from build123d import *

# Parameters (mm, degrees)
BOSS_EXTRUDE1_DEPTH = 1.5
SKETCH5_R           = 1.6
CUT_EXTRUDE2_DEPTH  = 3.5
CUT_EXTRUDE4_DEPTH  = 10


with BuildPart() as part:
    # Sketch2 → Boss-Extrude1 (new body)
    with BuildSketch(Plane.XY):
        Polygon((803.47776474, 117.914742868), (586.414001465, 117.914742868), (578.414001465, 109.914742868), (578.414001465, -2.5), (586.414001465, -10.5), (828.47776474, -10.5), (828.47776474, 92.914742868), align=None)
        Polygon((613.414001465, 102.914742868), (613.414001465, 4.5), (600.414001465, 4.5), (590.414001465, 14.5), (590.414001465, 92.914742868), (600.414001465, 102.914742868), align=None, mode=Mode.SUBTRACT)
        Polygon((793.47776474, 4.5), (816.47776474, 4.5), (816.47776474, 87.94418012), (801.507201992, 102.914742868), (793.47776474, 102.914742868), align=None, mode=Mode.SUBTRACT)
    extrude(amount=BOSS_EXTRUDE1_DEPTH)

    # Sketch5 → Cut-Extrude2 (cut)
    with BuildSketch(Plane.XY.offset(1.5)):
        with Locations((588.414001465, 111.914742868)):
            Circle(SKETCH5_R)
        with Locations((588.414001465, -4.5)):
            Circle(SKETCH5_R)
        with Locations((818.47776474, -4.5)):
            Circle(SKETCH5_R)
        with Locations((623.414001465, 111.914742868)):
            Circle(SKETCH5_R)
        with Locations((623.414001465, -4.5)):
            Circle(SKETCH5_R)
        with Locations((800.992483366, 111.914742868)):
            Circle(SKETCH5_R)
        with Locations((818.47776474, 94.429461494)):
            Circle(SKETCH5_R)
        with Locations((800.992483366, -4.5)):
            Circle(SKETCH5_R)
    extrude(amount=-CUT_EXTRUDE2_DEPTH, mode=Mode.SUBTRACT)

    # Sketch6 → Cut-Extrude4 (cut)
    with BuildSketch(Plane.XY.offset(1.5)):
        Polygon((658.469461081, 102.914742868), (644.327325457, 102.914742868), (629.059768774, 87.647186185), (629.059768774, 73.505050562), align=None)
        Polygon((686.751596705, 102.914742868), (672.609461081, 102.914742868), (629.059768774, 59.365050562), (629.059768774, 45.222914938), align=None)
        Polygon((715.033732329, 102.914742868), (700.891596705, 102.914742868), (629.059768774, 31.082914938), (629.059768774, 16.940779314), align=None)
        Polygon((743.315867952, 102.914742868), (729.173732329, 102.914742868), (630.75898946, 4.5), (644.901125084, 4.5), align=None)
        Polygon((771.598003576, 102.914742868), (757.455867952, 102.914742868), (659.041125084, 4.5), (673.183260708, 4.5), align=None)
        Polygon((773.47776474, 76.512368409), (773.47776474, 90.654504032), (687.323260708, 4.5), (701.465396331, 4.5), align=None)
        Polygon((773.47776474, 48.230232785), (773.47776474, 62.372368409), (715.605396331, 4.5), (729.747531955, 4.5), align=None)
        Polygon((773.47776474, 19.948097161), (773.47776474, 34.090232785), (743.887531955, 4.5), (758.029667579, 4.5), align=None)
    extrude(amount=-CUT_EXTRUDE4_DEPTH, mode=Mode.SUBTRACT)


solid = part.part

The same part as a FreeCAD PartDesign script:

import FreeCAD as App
import Part
import Sketcher

V = App.Vector


def add_polygon(sketch, points):
    """Adds a closed chain of lines whose ends are joined by coincident constraints."""
    first, n = sketch.GeometryCount, len(points)
    for a, b in zip(points, points[1:] + points[:1]):
        sketch.addGeometry(Part.LineSegment(App.Vector(*a, 0), App.Vector(*b, 0)), False)
    for i in range(n):
        sketch.addConstraint(Sketcher.Constraint("Coincident", first + i, 2, first + (i + 1) % n, 1))

doc = App.newDocument("Part")
params = doc.addObject("Spreadsheet::Sheet", "Params")
for row, (alias, value) in enumerate([
    ("sketch1_width", "13 mm"),
    ("sketch1_width2", "23 mm"),
    ("pad1_length", "1.5 mm"),
    ("sketch2_diameter", "3.2 mm"),
    ("pocket1_length", "3.5 mm"),
    ("pocket2_length", "10 mm"),
], start=1):
    params.set(f"A{row}", alias)
    params.set(f"B{row}", "=" + value)
    params.setAlias(f"B{row}", alias)

body = doc.addObject("PartDesign::Body", "Body")

# Sketch on XY plane
sketch1 = doc.addObject("Sketcher::SketchObject", "Sketch")
body.addObject(sketch1)
sketch1.AttachmentSupport = (doc.XY_Plane, [""])
sketch1.MapMode = "FlatFace"
add_polygon(sketch1, [(803, 118), (586, 118), (578, 110), (578, -2), (586, -10), (828, -10), (828, 93)])  # lines 0-6
add_polygon(sketch1, [(600, 103), (613, 103), (613, 4), (600, 4), (590, 14), (590, 93)])  # lines 7-12
add_polygon(sketch1, [(816, 4), (793, 4), (793, 103), (802, 103), (816, 88)])  # lines 13-17
sketch1.addConstraint(Sketcher.Constraint("Horizontal", 0))
sketch1.addConstraint(Sketcher.Constraint("Vertical", 2))
sketch1.addConstraint(Sketcher.Constraint("Horizontal", 4))
sketch1.addConstraint(Sketcher.Constraint("Vertical", 5))
sketch1.addConstraint(Sketcher.Constraint("Horizontal", 7))
sketch1.addConstraint(Sketcher.Constraint("Vertical", 8))
sketch1.addConstraint(Sketcher.Constraint("Horizontal", 9))
sketch1.addConstraint(Sketcher.Constraint("Vertical", 11))
sketch1.addConstraint(Sketcher.Constraint("Horizontal", 13))
sketch1.addConstraint(Sketcher.Constraint("Vertical", 14))
sketch1.addConstraint(Sketcher.Constraint("Horizontal", 15))
sketch1.addConstraint(Sketcher.Constraint("Vertical", 17))
sketch1.addConstraint(Sketcher.Constraint("Perpendicular", 1, 3))
sketch1.addConstraint(Sketcher.Constraint("Parallel", 3, 6))
sketch1.addConstraint(Sketcher.Constraint("Parallel", 6, 10))
sketch1.addConstraint(Sketcher.Constraint("Perpendicular", 10, 12))
sketch1.addConstraint(Sketcher.Constraint("Perpendicular", 12, 16))
sketch1.addConstraint(Sketcher.Constraint("Horizontal", 5, 2, 11, 2))
sketch1.addConstraint(Sketcher.Constraint("Horizontal", 9, 2, 13, 2))
sketch1.addConstraint(Sketcher.Constraint("Horizontal", 12, 2, 14, 2))
sketch1.addConstraint(Sketcher.Constraint("Vertical", 0, 2, 3, 2))
sketch1.addConstraint(Sketcher.Constraint("Vertical", 9, 2, 12, 2))
sketch1.addConstraint(Sketcher.Constraint("Equal", 1, 3))
sketch1.addConstraint(Sketcher.Constraint("DistanceX", 7, 1, 7, 2, 13.0))
sketch1.addConstraint(Sketcher.Constraint("DistanceX", 13, 2, 13, 1, 23.0))
sketch1.addConstraint(Sketcher.Constraint("DistanceX", 1, 2, 0, 2, 8.0))
sketch1.addConstraint(Sketcher.Constraint("DistanceY", 5, 2, 0, 2, 25.0))
sketch1.addConstraint(Sketcher.Constraint("DistanceX", 0, 2, 7, 2, 27.0))
sketch1.addConstraint(Sketcher.Constraint("DistanceY", 7, 2, 0, 2, 15.0))
sketch1.addConstraint(Sketcher.Constraint("DistanceY", 3, 2, 8, 2, 15.0))
sketch1.addConstraint(Sketcher.Constraint("DistanceX", 13, 2, 4, 2, 35.0))
sketch1.addConstraint(Sketcher.Constraint("DistanceY", 2, 2, -1, 1, 2.5))
sketch1.addConstraint(Sketcher.Constraint("DistanceX", -1, 1, 0, 2, 586.414001))
sketch1.addConstraint(Sketcher.Constraint("DistanceY", 17, 2, 17, 1, 83.44418))
sketch1.addConstraint(Sketcher.Constraint("DistanceX", -1, 1, 15, 2, 801.507202))
sketch1.addConstraint(Sketcher.Constraint("DistanceX", 0, 2, 0, 1, 217.063763))
sketch1.setExpression("Constraints[41]", "Params.sketch1_width")
sketch1.setExpression("Constraints[42]", "Params.sketch1_width2")
pad1 = doc.addObject("PartDesign::Pad", "Pad")
body.addObject(pad1)
pad1.Profile = sketch1
pad1.setExpression("Length", "Params.pad1_length")

# Sketch on XY plane
sketch2 = doc.addObject("Sketcher::SketchObject", "Sketch001")
body.addObject(sketch2)
sketch2.AttachmentSupport = (doc.XY_Plane, [""])
sketch2.MapMode = "FlatFace"
sketch2.AttachmentOffset = App.Placement(V(0, 0, 1.5), App.Rotation())
sketch2.addGeometry(Part.Circle(V(588.4, 111.9, 0), V(0, 0, 1), 1.6), False)
sketch2.addGeometry(Part.Circle(V(588.4, -4.5, 0), V(0, 0, 1), 1.6), False)
sketch2.addGeometry(Part.Circle(V(818.5, -4.5, 0), V(0, 0, 1), 1.6), False)
sketch2.addGeometry(Part.Circle(V(623.4, 111.9, 0), V(0, 0, 1), 1.6), False)
sketch2.addGeometry(Part.Circle(V(623.4, -4.5, 0), V(0, 0, 1), 1.6), False)
sketch2.addGeometry(Part.Circle(V(801, 111.9, 0), V(0, 0, 1), 1.6), False)
sketch2.addGeometry(Part.Circle(V(818.5, 94.4, 0), V(0, 0, 1), 1.6), False)
sketch2.addGeometry(Part.Circle(V(801, -4.5, 0), V(0, 0, 1), 1.6), False)
sketch2.addConstraint(Sketcher.Constraint("Equal", 0, 1))
sketch2.addConstraint(Sketcher.Constraint("Equal", 1, 2))
sketch2.addConstraint(Sketcher.Constraint("Equal", 2, 3))
sketch2.addConstraint(Sketcher.Constraint("Equal", 3, 4))
sketch2.addConstraint(Sketcher.Constraint("Equal", 4, 5))
sketch2.addConstraint(Sketcher.Constraint("Equal", 5, 6))
sketch2.addConstraint(Sketcher.Constraint("Equal", 6, 7))
sketch2.addConstraint(Sketcher.Constraint("Horizontal", 1, 3, 2, 3))
sketch2.addConstraint(Sketcher.Constraint("Horizontal", 0, 3, 3, 3))
sketch2.addConstraint(Sketcher.Constraint("Horizontal", 2, 3, 4, 3))
sketch2.addConstraint(Sketcher.Constraint("Horizontal", 3, 3, 5, 3))
sketch2.addConstraint(Sketcher.Constraint("Horizontal", 4, 3, 7, 3))
sketch2.addConstraint(Sketcher.Constraint("Vertical", 0, 3, 1, 3))
sketch2.addConstraint(Sketcher.Constraint("Vertical", 3, 3, 4, 3))
sketch2.addConstraint(Sketcher.Constraint("Vertical", 2, 3, 6, 3))
sketch2.addConstraint(Sketcher.Constraint("Vertical", 5, 3, 7, 3))
sketch2.addConstraint(Sketcher.Constraint("Diameter", 0, 3.2))
sketch2.addConstraint(Sketcher.Constraint("DistanceX", 0, 3, 3, 3, 35.0))
sketch2.addConstraint(Sketcher.Constraint("DistanceY", 1, 3, -1, 1, 4.5))
sketch2.addConstraint(Sketcher.Constraint("DistanceX", -1, 1, 0, 3, 588.414001))
sketch2.addConstraint(Sketcher.Constraint("DistanceY", -1, 1, 6, 3, 94.429461))
sketch2.addConstraint(Sketcher.Constraint("DistanceX", 5, 3, 2, 3, 17.485281))
sketch2.addConstraint(Sketcher.Constraint("DistanceX", 3, 3, 5, 3, 177.578482))
sketch2.addConstraint(Sketcher.Constraint("DistanceY", 6, 3, 5, 3, 17.485281))
sketch2.setExpression("Constraints[16]", "Params.sketch2_diameter")
pocket1 = doc.addObject("PartDesign::Pocket", "Pocket")
body.addObject(pocket1)
pocket1.Profile = sketch2
pocket1.setExpression("Length", "Params.pocket1_length")

# Sketch on XY plane
sketch3 = doc.addObject("Sketcher::SketchObject", "Sketch002")
body.addObject(sketch3)
sketch3.AttachmentSupport = (doc.XY_Plane, [""])
sketch3.MapMode = "FlatFace"
sketch3.AttachmentOffset = App.Placement(V(0, 0, 1.5), App.Rotation())
add_polygon(sketch3, [(658, 103), (644, 103), (629, 88), (629, 74)])  # lines 0-3
add_polygon(sketch3, [(687, 103), (673, 103), (629, 59), (629, 45)])  # lines 4-7
add_polygon(sketch3, [(715, 103), (701, 103), (629, 31), (629, 17)])  # lines 8-11
add_polygon(sketch3, [(743, 103), (729, 103), (631, 4), (645, 4)])  # lines 12-15
add_polygon(sketch3, [(772, 103), (757, 103), (659, 4), (673, 4)])  # lines 16-19
add_polygon(sketch3, [(773, 77), (773, 91), (687, 4), (701, 4)])  # lines 20-23
add_polygon(sketch3, [(773, 48), (773, 62), (716, 4), (730, 4)])  # lines 24-27
add_polygon(sketch3, [(773, 20), (773, 34), (744, 4), (758, 4)])  # lines 28-31
sketch3.addConstraint(Sketcher.Constraint("Horizontal", 0))
sketch3.addConstraint(Sketcher.Constraint("Vertical", 2))
sketch3.addConstraint(Sketcher.Constraint("Horizontal", 4))
sketch3.addConstraint(Sketcher.Constraint("Vertical", 6))
sketch3.addConstraint(Sketcher.Constraint("Horizontal", 8))
sketch3.addConstraint(Sketcher.Constraint("Vertical", 10))
sketch3.addConstraint(Sketcher.Constraint("Horizontal", 12))
sketch3.addConstraint(Sketcher.Constraint("Horizontal", 14))
sketch3.addConstraint(Sketcher.Constraint("Horizontal", 16))
sketch3.addConstraint(Sketcher.Constraint("Horizontal", 18))
sketch3.addConstraint(Sketcher.Constraint("Vertical", 20))
sketch3.addConstraint(Sketcher.Constraint("Horizontal", 22))
sketch3.addConstraint(Sketcher.Constraint("Vertical", 24))
sketch3.addConstraint(Sketcher.Constraint("Horizontal", 26))
sketch3.addConstraint(Sketcher.Constraint("Vertical", 28))
sketch3.addConstraint(Sketcher.Constraint("Horizontal", 30))
sketch3.addConstraint(Sketcher.Constraint("Parallel", 1, 3))
sketch3.addConstraint(Sketcher.Constraint("Parallel", 3, 5))
sketch3.addConstraint(Sketcher.Constraint("Parallel", 5, 7))
sketch3.addConstraint(Sketcher.Constraint("Parallel", 7, 9))
sketch3.addConstraint(Sketcher.Constraint("Parallel", 9, 11))
sketch3.addConstraint(Sketcher.Constraint("Parallel", 11, 13))
sketch3.addConstraint(Sketcher.Constraint("Parallel", 13, 15))
sketch3.addConstraint(Sketcher.Constraint("Parallel", 15, 17))
sketch3.addConstraint(Sketcher.Constraint("Parallel", 17, 19))
sketch3.addConstraint(Sketcher.Constraint("Parallel", 19, 21))
sketch3.addConstraint(Sketcher.Constraint("Parallel", 21, 23))
sketch3.addConstraint(Sketcher.Constraint("Parallel", 23, 25))
sketch3.addConstraint(Sketcher.Constraint("Parallel", 25, 27))
sketch3.addConstraint(Sketcher.Constraint("Parallel", 27, 29))
sketch3.addConstraint(Sketcher.Constraint("Parallel", 29, 31))
sketch3.addConstraint(Sketcher.Constraint("Horizontal", 3, 2, 4, 2))
sketch3.addConstraint(Sketcher.Constraint("Horizontal", 7, 2, 8, 2))
sketch3.addConstraint(Sketcher.Constraint("Horizontal", 11, 2, 12, 2))
sketch3.addConstraint(Sketcher.Constraint("Horizontal", 15, 2, 16, 2))
sketch3.addConstraint(Sketcher.Constraint("Horizontal", 14, 2, 17, 2))
sketch3.addConstraint(Sketcher.Constraint("Horizontal", 18, 2, 21, 2))
sketch3.addConstraint(Sketcher.Constraint("Horizontal", 22, 2, 25, 2))
sketch3.addConstraint(Sketcher.Constraint("Horizontal", 26, 2, 29, 2))
sketch3.addConstraint(Sketcher.Constraint("Vertical", 2, 2, 5, 2))
sketch3.addConstraint(Sketcher.Constraint("Vertical", 6, 2, 9, 2))
sketch3.addConstraint(Sketcher.Constraint("Vertical", 23, 2, 24, 2))
sketch3.addConstraint(Sketcher.Constraint("Vertical", 27, 2, 28, 2))
sketch3.addConstraint(Sketcher.Constraint("Equal", 0, 4))
sketch3.addConstraint(Sketcher.Constraint("Equal", 4, 8))
sketch3.addConstraint(Sketcher.Constraint("Equal", 8, 12))
sketch3.addConstraint(Sketcher.Constraint("Equal", 14, 16))
sketch3.addConstraint(Sketcher.Constraint("Equal", 18, 22))
sketch3.addConstraint(Sketcher.Constraint("Equal", 22, 26))
sketch3.addConstraint(Sketcher.Constraint("Equal", 26, 30))
sketch3.addConstraint(Sketcher.Constraint("Equal", 30, 2))
sketch3.addConstraint(Sketcher.Constraint("DistanceY", -1, 1, 13, 2, 4.5))
sketch3.addConstraint(Sketcher.Constraint("DistanceX", 3, 2, 4, 2, 14.14))
sketch3.addConstraint(Sketcher.Constraint("DistanceX", 7, 2, 8, 2, 14.14))
sketch3.addConstraint(Sketcher.Constraint("DistanceX", 11, 2, 12, 2, 14.14))
sketch3.addConstraint(Sketcher.Constraint("DistanceX", 15, 2, 16, 2, 14.14))
sketch3.addConstraint(Sketcher.Constraint("DistanceX", 18, 2, 21, 2, 14.14))
sketch3.addConstraint(Sketcher.Constraint("DistanceY", 24, 2, 23, 2, 14.14))
sketch3.addConstraint(Sketcher.Constraint("DistanceY", 28, 2, 27, 2, 14.14))
sketch3.addConstraint(Sketcher.Constraint("Distance", 21, 121.840868))
sketch3.addConstraint(Sketcher.Constraint("Distance", 23, 101.840868))
sketch3.addConstraint(Sketcher.Constraint("DistanceX", -1, 1, 1, 2, 629.059769))
sketch3.addConstraint(Sketcher.Constraint("DistanceY", -1, 1, 2, 2, 73.505051))
sketch3.addConstraint(Sketcher.Constraint("DistanceX", -1, 1, 3, 2, 658.469461))
pocket2 = doc.addObject("PartDesign::Pocket", "Pocket001")
body.addObject(pocket2)
pocket2.Profile = sketch3
pocket2.setExpression("Length", "Params.pocket2_length")

doc.recompute()
